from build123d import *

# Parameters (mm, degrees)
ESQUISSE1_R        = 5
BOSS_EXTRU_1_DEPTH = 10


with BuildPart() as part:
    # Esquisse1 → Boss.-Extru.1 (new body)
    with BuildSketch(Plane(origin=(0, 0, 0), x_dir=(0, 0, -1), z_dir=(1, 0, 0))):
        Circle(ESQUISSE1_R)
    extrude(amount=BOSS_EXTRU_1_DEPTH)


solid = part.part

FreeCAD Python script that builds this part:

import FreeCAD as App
import Part
import Sketcher
from FreeCAD import Vector

doc = App.newDocument("Part")
params = doc.addObject("Spreadsheet::Sheet", "Params")
for row, (alias, value) in enumerate([
    ("sketch1_diameter", "10 mm"),
    ("pad1_length", "10 mm"),
], start=1):
    params.set(f"A{row}", alias)
    params.set(f"B{row}", "=" + value)
    params.setAlias(f"B{row}", alias)

body = doc.addObject("PartDesign::Body", "Body")

# Sketch on YZ plane
sketch1 = doc.addObject("Sketcher::SketchObject", "Sketch")
body.addObject(sketch1)
sketch1.AttachmentSupport = (doc.YZ_Plane, [""])
sketch1.MapMode = "FlatFace"
sketch1.addGeometry(Part.Circle(Vector(0, 0, 0), Vector(0, 0, 1), 5), False)
sketch1.addConstraint([
    Sketcher.Constraint("Coincident", 0, 3, -1, 1),
    Sketcher.Constraint("Diameter", 0, 10.0),
])
sketch1.setExpression("Constraints[1]", "Params.sketch1_diameter")
pad1 = doc.addObject("PartDesign::Pad", "Pad")
body.addObject(pad1)
pad1.Profile = sketch1
pad1.setExpression("Length", "Params.pad1_length")

doc.recompute()
